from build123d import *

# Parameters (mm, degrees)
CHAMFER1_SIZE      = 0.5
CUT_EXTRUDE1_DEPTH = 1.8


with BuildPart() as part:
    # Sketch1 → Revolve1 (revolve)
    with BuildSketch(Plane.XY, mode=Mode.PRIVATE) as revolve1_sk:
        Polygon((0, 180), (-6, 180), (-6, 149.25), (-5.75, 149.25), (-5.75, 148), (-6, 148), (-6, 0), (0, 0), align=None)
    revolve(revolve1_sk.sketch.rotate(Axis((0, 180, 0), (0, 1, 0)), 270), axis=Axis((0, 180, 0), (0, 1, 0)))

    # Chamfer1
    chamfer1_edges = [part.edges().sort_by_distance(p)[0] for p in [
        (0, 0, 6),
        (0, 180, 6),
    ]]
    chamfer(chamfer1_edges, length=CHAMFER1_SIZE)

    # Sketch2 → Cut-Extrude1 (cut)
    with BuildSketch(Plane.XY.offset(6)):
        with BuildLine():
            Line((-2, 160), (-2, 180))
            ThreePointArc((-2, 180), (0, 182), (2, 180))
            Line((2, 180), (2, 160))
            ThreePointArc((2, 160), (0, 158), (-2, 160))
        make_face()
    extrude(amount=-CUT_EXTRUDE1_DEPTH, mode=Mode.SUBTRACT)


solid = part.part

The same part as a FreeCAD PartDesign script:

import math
import FreeCAD as App
import Part
import Sketcher

V = App.Vector


def edges_at(feature, points):
    """Names of the edges that pass closest to the given points."""
    edges = feature.Shape.Edges
    near = lambda p: min(range(len(edges)), key=lambda i: edges[i].distToShape(Part.Vertex(*p))[0])
    return sorted({f"Edge{near(p) + 1}" for p in points})


def add_polygon(sketch, points):
    """Adds a closed chain of lines whose ends are joined by coincident constraints."""
    first, n = sketch.GeometryCount, len(points)
    for a, b in zip(points, points[1:] + points[:1]):
        sketch.addGeometry(Part.LineSegment(App.Vector(*a, 0), App.Vector(*b, 0)), False)
    for i in range(n):
        sketch.addConstraint(Sketcher.Constraint("Coincident", first + i, 2, first + (i + 1) % n, 1))

doc = App.newDocument("Part")
body = doc.addObject("PartDesign::Body", "Body")

# Sketch on XY plane
sketch1 = body.newObject("Sketcher::SketchObject", "Sketch")
sketch1.AttachmentSupport = (doc.getObject("XY_Plane"), [""])
sketch1.MapMode = "FlatFace"
add_polygon(sketch1, [(0, 180), (-6, 180), (-6, 149.25), (-5.75, 149.25), (-5.75, 148), (-6, 148), (-6, 0), (0, 0)])  # lines 0-7
sketch1.addConstraint([
    Sketcher.Constraint("Horizontal", 0),
    Sketcher.Constraint("Vertical", 1),
    Sketcher.Constraint("Horizontal", 2),
    Sketcher.Constraint("Vertical", 3),
    Sketcher.Constraint("Horizontal", 4),
    Sketcher.Constraint("Vertical", 5),
    Sketcher.Constraint("Horizontal", 6),
    Sketcher.Constraint("Vertical", 7),
    Sketcher.Constraint("Coincident", 6, 2, -1, 1),
    Sketcher.Constraint("Vertical", 1, 2, 4, 2),
    Sketcher.Constraint("DistanceX", 0, 2, 0, 1, 6.0),
    Sketcher.Constraint("DistanceY", 5, 2, 5, 1, 148.0),
    Sketcher.Constraint("DistanceY", 7, 1, 7, 2, 180.0),
    Sketcher.Constraint("DistanceX", 2, 1, 2, 2, 0.25),
    Sketcher.Constraint("DistanceY", 1, 2, 1, 1, 30.75),
])
revolution = body.newObject("PartDesign::Revolution", "Revolution")
revolution.Profile = sketch1
revolution.ReferenceAxis = (sketch1, ["V_Axis"])
revolution.Angle = 360
doc.recompute()

chamfer = body.newObject("PartDesign::Chamfer", "Chamfer")
chamfer.Base = (revolution, edges_at(revolution, [(0, 0, 6), (0, 180, 6)]))
chamfer.Size = 0.5

# Sketch on XY plane
sketch2 = body.newObject("Sketcher::SketchObject", "Sketch001")
sketch2.AttachmentSupport = (doc.getObject("XY_Plane"), [""])
sketch2.MapMode = "FlatFace"
sketch2.AttachmentOffset = App.Placement(V(0, 0, 6), App.Rotation())
sketch2.addGeometry([
    Part.LineSegment(V(-2, 180, 0), V(-2, 160, 0)),
    Part.ArcOfCircle(Part.Circle(V(0, 160, 0), V(0, 0, 1), 2), math.radians(180), math.radians(360)),
    Part.LineSegment(V(2, 160, 0), V(2, 180, 0)),
    Part.ArcOfCircle(Part.Circle(V(0, 180, 0), V(0, 0, 1), 2), math.radians(0), math.radians(180)),
], False)
sketch2.addConstraint([
    Sketcher.Constraint("Tangent", 0, 2, 1, 1),
    Sketcher.Constraint("Tangent", 1, 2, 2, 1),
    Sketcher.Constraint("Tangent", 2, 2, 3, 1),
    Sketcher.Constraint("Tangent", 3, 2, 0, 1),
    Sketcher.Constraint("Vertical", 0),
    Sketcher.Constraint("Vertical", 2),
    Sketcher.Constraint("PointOnObject", 1, 3, -2),
    Sketcher.Constraint("Radius", 1, 2.0),
    Sketcher.Constraint("DistanceY", 0, 2, 0, 1, 20.0),
    Sketcher.Constraint("DistanceY", -1, 1, 1, 3, 160.0),
])
pocket1 = body.newObject("PartDesign::Pocket", "Pocket")
pocket1.Profile = sketch2
pocket1.Length = 1.8

doc.recompute()
